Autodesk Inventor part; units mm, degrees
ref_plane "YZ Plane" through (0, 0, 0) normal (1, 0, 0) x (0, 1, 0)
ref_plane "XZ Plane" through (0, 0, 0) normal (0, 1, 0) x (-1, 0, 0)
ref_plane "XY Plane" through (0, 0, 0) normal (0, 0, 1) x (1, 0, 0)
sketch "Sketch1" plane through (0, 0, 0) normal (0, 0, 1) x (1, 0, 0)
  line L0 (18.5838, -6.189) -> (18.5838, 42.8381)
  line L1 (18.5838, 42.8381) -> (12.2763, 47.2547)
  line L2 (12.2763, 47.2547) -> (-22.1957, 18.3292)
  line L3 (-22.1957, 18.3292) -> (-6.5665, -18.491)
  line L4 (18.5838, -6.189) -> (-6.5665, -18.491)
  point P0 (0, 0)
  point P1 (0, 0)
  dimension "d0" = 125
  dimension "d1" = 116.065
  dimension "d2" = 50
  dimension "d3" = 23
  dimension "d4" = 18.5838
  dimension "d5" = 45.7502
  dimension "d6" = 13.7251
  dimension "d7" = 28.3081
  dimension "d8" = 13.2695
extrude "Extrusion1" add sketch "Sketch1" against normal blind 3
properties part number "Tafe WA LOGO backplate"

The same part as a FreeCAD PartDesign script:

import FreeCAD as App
import Part
import Sketcher
Q = App.Units.Quantity

doc = App.newDocument("Part")
params = doc.addObject("Spreadsheet::Sheet", "Params")
for row, (alias, value) in enumerate([
    ("sketch1_length", "45 mm"),
    ("sketch1_length2", "40 mm"),
    ("sketch1_length3", "7.7 mm"),
    ("pad1_length", "3 mm"),
], start=1):
    params.set(f"A{row}", alias)
    params.set(f"B{row}", "=" + value)
    params.setAlias(f"B{row}", alias)

body = doc.addObject("PartDesign::Body", "Body")

# Sketch on XY plane
sketch1 = doc.addObject("Sketcher::SketchObject", "Sketch")
body.addObject(sketch1)
sketch1.AttachmentSupport = (doc.XY_Plane, [""])
sketch1.MapMode = "FlatFace"
sketch1.addGeometry(Part.LineSegment(App.Vector(-7, -18, 0), App.Vector(19, -6, 0)), False)
sketch1.addGeometry(Part.LineSegment(App.Vector(19, -6, 0), App.Vector(19, 43, 0)), False)
sketch1.addGeometry(Part.LineSegment(App.Vector(19, 43, 0), App.Vector(12, 47, 0)), False)
sketch1.addGeometry(Part.LineSegment(App.Vector(12, 47, 0), App.Vector(-22, 18, 0)), False)
sketch1.addGeometry(Part.LineSegment(App.Vector(-22, 18, 0), App.Vector(-7, -18, 0)), False)
sketch1.addConstraint(Sketcher.Constraint("Coincident", 0, 2, 1, 1))
sketch1.addConstraint(Sketcher.Constraint("Coincident", 1, 2, 2, 1))
sketch1.addConstraint(Sketcher.Constraint("Coincident", 2, 2, 3, 1))
sketch1.addConstraint(Sketcher.Constraint("Coincident", 3, 2, 4, 1))
sketch1.addConstraint(Sketcher.Constraint("Coincident", 4, 2, 0, 1))
sketch1.addConstraint(Sketcher.Constraint("Vertical", 1))
sketch1.addConstraint(Sketcher.Constraint("Angle", 2, Q("144.9998 deg")))
sketch1.addConstraint(Sketcher.Constraint("Angle", 3, Q("-140 deg")))
sketch1.addConstraint(Sketcher.Constraint("Angle", 4, Q("-67 deg")))
sketch1.addConstraint(Sketcher.Constraint("Distance", 3, Q("45 mm")))
sketch1.addConstraint(Sketcher.Constraint("Distance", 4, Q("40 mm")))
sketch1.addConstraint(Sketcher.Constraint("Distance", 2, Q("7.7 mm")))
sketch1.addConstraint(Sketcher.Constraint("DistanceX", -1, 1, 0, 2, Q("18.5838 mm")))
sketch1.addConstraint(Sketcher.Constraint("DistanceY", 1, 1, 1, 2, Q("49.027 mm")))
sketch1.addConstraint(Sketcher.Constraint("DistanceY", 0, 2, -1, 1, Q("6.189 mm")))
sketch1.setExpression("Constraints[9]", "Params.sketch1_length")
sketch1.setExpression("Constraints[10]", "Params.sketch1_length2")
sketch1.setExpression("Constraints[11]", "Params.sketch1_length3")
pad1 = doc.addObject("PartDesign::Pad", "Pad")
body.addObject(pad1)
pad1.Profile = sketch1
pad1.setExpression("Length", "Params.pad1_length")
pad1.Reversed = True

doc.recompute()
